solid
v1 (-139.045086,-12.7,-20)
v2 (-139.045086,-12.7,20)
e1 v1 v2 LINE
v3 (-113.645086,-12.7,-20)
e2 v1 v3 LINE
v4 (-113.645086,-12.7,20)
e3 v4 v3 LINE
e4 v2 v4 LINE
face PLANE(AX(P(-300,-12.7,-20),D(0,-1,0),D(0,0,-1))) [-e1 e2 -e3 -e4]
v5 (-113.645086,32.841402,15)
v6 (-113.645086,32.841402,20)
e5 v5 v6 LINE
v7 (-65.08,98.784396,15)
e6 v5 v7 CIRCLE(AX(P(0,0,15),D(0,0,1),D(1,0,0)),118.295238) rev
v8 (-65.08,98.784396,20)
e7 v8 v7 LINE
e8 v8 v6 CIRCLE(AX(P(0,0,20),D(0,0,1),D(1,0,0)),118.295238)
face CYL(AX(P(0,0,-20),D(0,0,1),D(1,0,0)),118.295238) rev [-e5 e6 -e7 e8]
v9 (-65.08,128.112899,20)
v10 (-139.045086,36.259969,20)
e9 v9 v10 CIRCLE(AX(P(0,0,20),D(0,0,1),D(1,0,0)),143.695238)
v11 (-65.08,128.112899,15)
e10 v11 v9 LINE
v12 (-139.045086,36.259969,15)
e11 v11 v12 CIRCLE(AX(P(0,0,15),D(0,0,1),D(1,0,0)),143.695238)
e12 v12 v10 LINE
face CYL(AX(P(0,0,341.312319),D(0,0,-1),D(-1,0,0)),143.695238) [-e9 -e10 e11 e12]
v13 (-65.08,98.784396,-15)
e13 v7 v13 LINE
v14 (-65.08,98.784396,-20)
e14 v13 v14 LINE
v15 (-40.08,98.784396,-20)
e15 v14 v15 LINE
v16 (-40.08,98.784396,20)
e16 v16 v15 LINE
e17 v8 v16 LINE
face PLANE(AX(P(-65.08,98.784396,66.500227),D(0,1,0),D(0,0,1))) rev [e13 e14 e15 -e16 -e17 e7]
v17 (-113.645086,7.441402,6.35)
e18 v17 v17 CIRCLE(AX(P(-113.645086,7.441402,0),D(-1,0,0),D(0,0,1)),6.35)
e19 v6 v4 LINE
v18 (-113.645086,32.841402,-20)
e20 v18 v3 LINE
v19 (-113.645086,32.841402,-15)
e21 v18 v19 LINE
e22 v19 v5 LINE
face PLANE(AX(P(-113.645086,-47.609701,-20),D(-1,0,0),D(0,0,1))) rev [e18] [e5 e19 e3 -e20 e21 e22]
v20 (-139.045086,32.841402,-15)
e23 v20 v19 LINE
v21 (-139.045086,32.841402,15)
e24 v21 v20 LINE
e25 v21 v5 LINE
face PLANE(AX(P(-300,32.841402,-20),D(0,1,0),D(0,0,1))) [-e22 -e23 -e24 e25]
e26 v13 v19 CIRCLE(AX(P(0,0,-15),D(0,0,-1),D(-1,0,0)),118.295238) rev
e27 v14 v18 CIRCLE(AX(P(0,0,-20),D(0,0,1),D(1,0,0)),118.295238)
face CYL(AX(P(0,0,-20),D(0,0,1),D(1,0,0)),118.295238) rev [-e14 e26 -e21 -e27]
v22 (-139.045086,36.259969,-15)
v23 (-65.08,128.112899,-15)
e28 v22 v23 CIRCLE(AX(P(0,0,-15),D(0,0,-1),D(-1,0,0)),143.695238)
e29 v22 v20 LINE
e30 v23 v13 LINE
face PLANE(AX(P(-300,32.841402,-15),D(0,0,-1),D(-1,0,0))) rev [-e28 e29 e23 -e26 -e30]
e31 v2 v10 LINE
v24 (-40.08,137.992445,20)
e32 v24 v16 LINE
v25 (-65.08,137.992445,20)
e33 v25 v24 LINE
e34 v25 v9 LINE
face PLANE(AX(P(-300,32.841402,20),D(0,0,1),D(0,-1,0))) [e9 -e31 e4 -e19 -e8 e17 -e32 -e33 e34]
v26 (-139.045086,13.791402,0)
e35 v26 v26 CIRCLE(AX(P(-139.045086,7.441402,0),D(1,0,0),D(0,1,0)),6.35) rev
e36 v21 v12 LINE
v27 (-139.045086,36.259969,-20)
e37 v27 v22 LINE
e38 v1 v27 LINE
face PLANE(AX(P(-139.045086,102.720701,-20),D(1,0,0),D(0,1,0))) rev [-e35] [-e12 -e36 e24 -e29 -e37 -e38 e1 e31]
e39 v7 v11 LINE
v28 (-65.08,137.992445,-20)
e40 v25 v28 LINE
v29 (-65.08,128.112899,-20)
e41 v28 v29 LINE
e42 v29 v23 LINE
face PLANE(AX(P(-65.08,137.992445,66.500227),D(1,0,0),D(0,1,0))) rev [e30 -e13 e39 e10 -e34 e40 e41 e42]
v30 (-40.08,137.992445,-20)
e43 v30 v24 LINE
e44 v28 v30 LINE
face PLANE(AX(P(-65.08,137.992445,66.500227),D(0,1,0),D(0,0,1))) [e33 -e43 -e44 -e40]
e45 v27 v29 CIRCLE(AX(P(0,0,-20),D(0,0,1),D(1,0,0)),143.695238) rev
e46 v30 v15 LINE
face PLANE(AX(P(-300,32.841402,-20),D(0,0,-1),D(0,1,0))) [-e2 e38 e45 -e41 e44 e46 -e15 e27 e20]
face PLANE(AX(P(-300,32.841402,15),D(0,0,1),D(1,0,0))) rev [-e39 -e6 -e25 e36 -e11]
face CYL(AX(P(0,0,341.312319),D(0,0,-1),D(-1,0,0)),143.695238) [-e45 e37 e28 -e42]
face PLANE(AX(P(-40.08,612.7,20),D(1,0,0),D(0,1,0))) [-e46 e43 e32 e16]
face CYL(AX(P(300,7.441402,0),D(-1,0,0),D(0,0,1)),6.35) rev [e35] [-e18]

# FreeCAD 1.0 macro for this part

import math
import FreeCAD as App
import Part
import Sketcher

V = App.Vector

doc = App.newDocument("Part")
body = doc.addObject("PartDesign::Body", "Body")

# Sketch on YZ plane
sketch1 = body.newObject("Sketcher::SketchObject", "Sketch")
sketch1.AttachmentSupport = (doc.getObject("YZ_Plane"), [""])
sketch1.MapMode = "FlatFace"
sketch1.addGeometry([
    Part.LineSegment(V(32.841402, 20, 0), V(-12.7, 20, 0)),
    Part.LineSegment(V(-12.7, 20, 0), V(-12.7, -20, 0)),
    Part.LineSegment(V(-12.7, -20, 0), V(32.841402, -20, 0)),
    Part.LineSegment(V(32.841402, -20, 0), V(32.841402, 20, 0)),
], False)
sketch1.addConstraint([
    Sketcher.Constraint("Coincident", 0, 2, 1, 1),
    Sketcher.Constraint("Coincident", 1, 2, 2, 1),
    Sketcher.Constraint("Coincident", 2, 2, 3, 1),
    Sketcher.Constraint("Coincident", 3, 2, 0, 1),
    Sketcher.Constraint("Horizontal", 0),
    Sketcher.Constraint("Vertical", 1),
    Sketcher.Constraint("Horizontal", 2),
    Sketcher.Constraint("Vertical", 3),
    Sketcher.Constraint("DistanceY", 1, 2, 1, 1, 40.0),
    Sketcher.Constraint("DistanceY", -1, 1, 0, 2, 20.0),
    Sketcher.Constraint("DistanceX", 0, 2, -1, 1, 12.7),
    Sketcher.Constraint("DistanceX", 0, 2, 0, 1, 45.541402),
])
pad1 = body.newObject("PartDesign::Pad", "Pad")
pad1.Profile = sketch1
pad1.Type = "TwoLengths"
pad1.Length = 300
pad1.Length2 = 300

# Sketch on XY plane
sketch2 = body.newObject("Sketcher::SketchObject", "Sketch001")
sketch2.AttachmentSupport = (doc.getObject("XY_Plane"), [""])
sketch2.MapMode = "FlatFace"
sketch2.addGeometry([
    Part.ArcOfCircle(Part.Circle(V(0, 0, 0), V(0, 0, 1), 143.695238), math.radians(0), math.radians(180)),
    Part.LineSegment(V(-143.695238, 0, 0), V(143.695238, 0, 0)),
], False)
sketch2.addConstraint([
    Sketcher.Constraint("Coincident", 0, 1, 1, 2),
    Sketcher.Constraint("Coincident", 1, 1, 0, 2),
    Sketcher.Constraint("Horizontal", 1),
    Sketcher.Constraint("Coincident", 0, 3, -1, 1),
    Sketcher.Constraint("PointOnObject", 0, 1, -1),
    Sketcher.Constraint("Radius", 0, 143.695238),
])
pad2 = body.newObject("PartDesign::Pad", "Pad001")
pad2.Profile = sketch2
pad2.Type = "TwoLengths"
pad2.Length = 20
pad2.Length2 = 20

# Sketch on XY plane
sketch3 = body.newObject("Sketcher::SketchObject", "Sketch002")
sketch3.AttachmentSupport = (doc.getObject("XY_Plane"), [""])
sketch3.MapMode = "FlatFace"
sketch3.addGeometry([
    Part.LineSegment(V(113.645086, -47.609701, 0), V(113.645086, 32.841402, 0)),
    Part.ArcOfCircle(Part.Circle(V(0, 0, 0), V(0, 0, 1), 118.295238), math.radians(16.11835), math.radians(163.88165)),
    Part.LineSegment(V(-113.645086, 32.841402, 0), V(-113.645086, -47.609701, 0)),
    Part.LineSegment(V(-113.645086, -47.609701, 0), V(113.645086, -47.609701, 0)),
], False)
sketch3.addConstraint([
    Sketcher.Constraint("Coincident", 0, 2, 1, 1),
    Sketcher.Constraint("Coincident", 1, 2, 2, 1),
    Sketcher.Constraint("Coincident", 2, 2, 3, 1),
    Sketcher.Constraint("Coincident", 3, 2, 0, 1),
    Sketcher.Constraint("Vertical", 0),
    Sketcher.Constraint("Vertical", 2),
    Sketcher.Constraint("Horizontal", 3),
    Sketcher.Constraint("Coincident", 1, 3, -1, 1),
    Sketcher.Constraint("Horizontal", 0, 2, 1, 2),
    Sketcher.Constraint("Radius", 1, 118.295238),
    Sketcher.Constraint("DistanceX", 3, 1, 3, 2, 227.290172),
    Sketcher.Constraint("DistanceY", 2, 2, -1, 1, 47.609701),
])
pocket1 = body.newObject("PartDesign::Pocket", "Pocket")
pocket1.Profile = sketch3
pocket1.Type = "ThroughAll"
pocket1.Midplane = True

# Sketch on YZ plane
sketch4 = body.newObject("Sketcher::SketchObject", "Sketch003")
sketch4.AttachmentSupport = (doc.getObject("YZ_Plane"), [""])
sketch4.MapMode = "FlatFace"
sketch4.AttachmentOffset = App.Placement(V(0, 0, -163.230236), App.Rotation())
sketch4.addGeometry(Part.Circle(V(7.441402, 0, 0), V(0, 0, 1), 6.35), False)
sketch4.addConstraint([
    Sketcher.Constraint("PointOnObject", 0, 3, -1),
    Sketcher.Constraint("Diameter", 0, 12.7),
    Sketcher.Constraint("DistanceX", -1, 1, 0, 3, 7.441402),
])
pocket2 = body.newObject("PartDesign::Pocket", "Pocket001")
pocket2.Profile = sketch4
pocket2.Type = "ThroughAll"
pocket2.Reversed = True

# Sketch on YZ plane
sketch5 = body.newObject("Sketcher::SketchObject", "Sketch004")
sketch5.AttachmentSupport = (doc.getObject("YZ_Plane"), [""])
sketch5.MapMode = "FlatFace"
sketch5.addGeometry([
    Part.LineSegment(V(532.841402, 15, 0), V(32.841402, 15, 0)),
    Part.LineSegment(V(32.841402, 15, 0), V(32.841402, -15, 0)),
    Part.LineSegment(V(32.841402, -15, 0), V(532.841402, -15, 0)),
    Part.LineSegment(V(532.841402, -15, 0), V(532.841402, 15, 0)),
], False)
sketch5.addConstraint([
    Sketcher.Constraint("Coincident", 0, 2, 1, 1),
    Sketcher.Constraint("Coincident", 1, 2, 2, 1),
    Sketcher.Constraint("Coincident", 2, 2, 3, 1),
    Sketcher.Constraint("Coincident", 3, 2, 0, 1),
    Sketcher.Constraint("Horizontal", 0),
    Sketcher.Constraint("Vertical", 1),
    Sketcher.Constraint("Horizontal", 2),
    Sketcher.Constraint("Vertical", 3),
    Sketcher.Constraint("DistanceX", 0, 2, 0, 1, 500.0),
    Sketcher.Constraint("DistanceY", 1, 2, 1, 1, 30.0),
    Sketcher.Constraint("DistanceY", -1, 1, 0, 2, 15.0),
    Sketcher.Constraint("DistanceX", -1, 1, 0, 2, 32.841402),
])
pocket3 = body.newObject("PartDesign::Pocket", "Pocket002")
pocket3.Profile = sketch5
pocket3.Type = "ThroughAll"

# Sketch on XY plane
sketch6 = body.newObject("Sketcher::SketchObject", "Sketch005")
sketch6.AttachmentSupport = (doc.getObject("XY_Plane"), [""])
sketch6.MapMode = "FlatFace"
sketch6.addGeometry([
    Part.LineSegment(V(-40.08, 612.7, 0), V(-40.08, -234.348891, 0)),
    Part.LineSegment(V(-40.08, -234.348891, 0), V(677.619329, -234.348891, 0)),
    Part.LineSegment(V(677.619329, -234.348891, 0), V(677.619329, 612.7, 0)),
    Part.LineSegment(V(677.619329, 612.7, 0), V(-40.08, 612.7, 0)),
], False)
sketch6.addConstraint([
    Sketcher.Constraint("Coincident", 0, 2, 1, 1),
    Sketcher.Constraint("Coincident", 1, 2, 2, 1),
    Sketcher.Constraint("Coincident", 2, 2, 3, 1),
    Sketcher.Constraint("Coincident", 3, 2, 0, 1),
    Sketcher.Constraint("Vertical", 0),
    Sketcher.Constraint("Horizontal", 1),
    Sketcher.Constraint("Vertical", 2),
    Sketcher.Constraint("Horizontal", 3),
    Sketcher.Constraint("DistanceY", -1, 1, 2, 2, 612.7),
    Sketcher.Constraint("DistanceX", 0, 2, -1, 1, 40.08),
    Sketcher.Constraint("DistanceX", 1, 1, 1, 2, 717.699329),
    Sketcher.Constraint("DistanceY", 0, 2, 0, 1, 847.048891),
])
pocket4 = body.newObject("PartDesign::Pocket", "Pocket003")
pocket4.Profile = sketch6
pocket4.Type = "ThroughAll"
pocket4.Midplane = True

# Sketch on XY plane
sketch7 = body.newObject("Sketcher::SketchObject", "Sketch006")
sketch7.AttachmentSupport = (doc.getObject("XY_Plane"), [""])
sketch7.MapMode = "FlatFace"
sketch7.AttachmentOffset = App.Placement(V(0, 0, -20), App.Rotation())
sketch7.addGeometry([
    Part.LineSegment(V(-65.08, 137.992445, 0), V(-65.08, 98.784396, 0)),
    Part.LineSegment(V(-65.08, 98.784396, 0), V(-40.08, 98.784396, 0)),
    Part.LineSegment(V(-40.08, 98.784396, 0), V(-40.08, 137.992445, 0)),
    Part.LineSegment(V(-40.08, 137.992445, 0), V(-65.08, 137.992445, 0)),
], False)
sketch7.addConstraint([
    Sketcher.Constraint("Coincident", 0, 2, 1, 1),
    Sketcher.Constraint("Coincident", 1, 2, 2, 1),
    Sketcher.Constraint("Coincident", 2, 2, 3, 1),
    Sketcher.Constraint("Coincident", 3, 2, 0, 1),
    Sketcher.Constraint("Vertical", 0),
    Sketcher.Constraint("Horizontal", 1),
    Sketcher.Constraint("Vertical", 2),
    Sketcher.Constraint("Horizontal", 3),
    Sketcher.Constraint("DistanceX", 1, 1, 1, 2, 25.0),
    Sketcher.Constraint("DistanceX", 0, 2, -1, 1, 65.08),
    Sketcher.Constraint("DistanceY", 0, 2, 0, 1, 39.208049),
    Sketcher.Constraint("DistanceY", -1, 1, 0, 2, 98.784396),
])
pad3 = body.newObject("PartDesign::Pad", "Pad002")
pad3.Profile = sketch7
pad3.Length = 40

# Sketch on XY plane
sketch8 = body.newObject("Sketcher::SketchObject", "Sketch007")
sketch8.AttachmentSupport = (doc.getObject("XY_Plane"), [""])
sketch8.MapMode = "FlatFace"
sketch8.addGeometry([
    Part.LineSegment(V(-439.045086, 102.720701, 0), V(-439.045086, -32.279299, 0)),
    Part.LineSegment(V(-439.045086, -32.279299, 0), V(-139.045086, -32.279299, 0)),
    Part.LineSegment(V(-139.045086, -32.279299, 0), V(-139.045086, 102.720701, 0)),
    Part.LineSegment(V(-139.045086, 102.720701, 0), V(-439.045086, 102.720701, 0)),
], False)
sketch8.addConstraint([
    Sketcher.Constraint("Coincident", 0, 2, 1, 1),
    Sketcher.Constraint("Coincident", 1, 2, 2, 1),
    Sketcher.Constraint("Coincident", 2, 2, 3, 1),
    Sketcher.Constraint("Coincident", 3, 2, 0, 1),
    Sketcher.Constraint("Vertical", 0),
    Sketcher.Constraint("Horizontal", 1),
    Sketcher.Constraint("Vertical", 2),
    Sketcher.Constraint("Horizontal", 3),
    Sketcher.Constraint("DistanceX", 1, 1, 1, 2, 300.0),
    Sketcher.Constraint("DistanceY", 0, 2, 0, 1, 135.0),
    Sketcher.Constraint("DistanceY", 0, 2, -1, 1, 32.279299),
    Sketcher.Constraint("DistanceX", 0, 2, -1, 1, 439.045086),
])
pocket5 = body.newObject("PartDesign::Pocket", "Pocket004")
pocket5.Profile = sketch8
pocket5.Type = "ThroughAll"
pocket5.Midplane = True

doc.recompute()
